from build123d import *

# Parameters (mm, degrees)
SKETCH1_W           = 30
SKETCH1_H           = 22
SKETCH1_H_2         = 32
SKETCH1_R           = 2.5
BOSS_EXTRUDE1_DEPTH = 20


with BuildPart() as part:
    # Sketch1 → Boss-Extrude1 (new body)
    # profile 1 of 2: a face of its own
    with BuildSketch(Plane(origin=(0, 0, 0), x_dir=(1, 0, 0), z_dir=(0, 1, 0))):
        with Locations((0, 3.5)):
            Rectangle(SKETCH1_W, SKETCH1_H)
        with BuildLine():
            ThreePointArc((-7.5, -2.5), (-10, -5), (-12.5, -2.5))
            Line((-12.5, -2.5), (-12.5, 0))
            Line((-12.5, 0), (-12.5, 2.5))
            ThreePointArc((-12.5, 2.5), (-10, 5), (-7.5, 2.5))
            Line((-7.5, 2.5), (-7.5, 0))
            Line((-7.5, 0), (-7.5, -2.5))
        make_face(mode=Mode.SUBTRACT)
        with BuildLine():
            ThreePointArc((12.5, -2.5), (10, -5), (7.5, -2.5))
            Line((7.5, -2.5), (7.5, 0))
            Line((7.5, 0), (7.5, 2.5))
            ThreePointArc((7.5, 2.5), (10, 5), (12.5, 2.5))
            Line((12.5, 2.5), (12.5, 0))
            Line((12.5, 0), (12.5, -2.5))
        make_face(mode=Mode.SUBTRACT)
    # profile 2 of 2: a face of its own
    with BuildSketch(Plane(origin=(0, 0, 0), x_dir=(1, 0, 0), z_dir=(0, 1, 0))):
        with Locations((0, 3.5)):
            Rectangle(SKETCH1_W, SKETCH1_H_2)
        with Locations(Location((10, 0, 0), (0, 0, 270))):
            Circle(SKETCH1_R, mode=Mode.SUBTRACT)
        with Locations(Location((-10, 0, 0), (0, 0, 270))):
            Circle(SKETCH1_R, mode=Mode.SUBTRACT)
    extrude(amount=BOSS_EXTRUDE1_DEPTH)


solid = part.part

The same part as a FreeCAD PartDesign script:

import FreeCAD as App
import Part
import Sketcher

V = App.Vector

doc = App.newDocument("Part")
body = doc.addObject("PartDesign::Body", "Body")

# Sketch on XZ plane
sketch1 = body.newObject("Sketcher::SketchObject", "Sketch")
sketch1.AttachmentSupport = (doc.getObject("XZ_Plane"), [""])
sketch1.MapMode = "FlatFace"
sketch1.addGeometry(Part.LineSegment(V(-15, 12.5, 0), V(15, 12.5, 0)), False)
sketch1.addGeometry(Part.LineSegment(V(15, 12.5, 0), V(15, -19.5, 0)), False)
sketch1.addGeometry(Part.LineSegment(V(15, -19.5, 0), V(-15, -19.5, 0)), False)
sketch1.addGeometry(Part.LineSegment(V(-15, -19.5, 0), V(-15, 12.5, 0)), False)
sketch1.addGeometry(Part.Circle(V(-10, 0, 0), V(0, 0, 1), 2.5), False)
sketch1.addGeometry(Part.Circle(V(10, 0, 0), V(0, 0, 1), 2.5), False)
sketch1.addConstraint(Sketcher.Constraint("Coincident", 0, 2, 1, 1))
sketch1.addConstraint(Sketcher.Constraint("Coincident", 1, 2, 2, 1))
sketch1.addConstraint(Sketcher.Constraint("Coincident", 2, 2, 3, 1))
sketch1.addConstraint(Sketcher.Constraint("Coincident", 3, 2, 0, 1))
sketch1.addConstraint(Sketcher.Constraint("Horizontal", 0))
sketch1.addConstraint(Sketcher.Constraint("Vertical", 1))
sketch1.addConstraint(Sketcher.Constraint("Horizontal", 2))
sketch1.addConstraint(Sketcher.Constraint("Vertical", 3))
sketch1.addConstraint(Sketcher.Constraint("Equal", 4, 5))
sketch1.addConstraint(Sketcher.Constraint("Symmetric", 4, 3, 5, 3, -1, 1))
sketch1.addConstraint(Sketcher.Constraint("PointOnObject", 4, 3, -1))
sketch1.addConstraint(Sketcher.Constraint("Diameter", 4, 5.0))
sketch1.addConstraint(Sketcher.Constraint("DistanceX", 0, 1, 0, 2, 30.0))
sketch1.addConstraint(Sketcher.Constraint("DistanceY", 1, 2, 1, 1, 32.0))
sketch1.addConstraint(Sketcher.Constraint("DistanceX", 4, 3, -1, 1, 10.0))
sketch1.addConstraint(Sketcher.Constraint("DistanceX", -1, 1, 0, 2, 15.0))
sketch1.addConstraint(Sketcher.Constraint("DistanceY", -1, 1, 0, 2, 12.5))
pad1 = body.newObject("PartDesign::Pad", "Pad")
pad1.Profile = sketch1
pad1.Length = 20
pad1.Reversed = True

doc.recompute()
